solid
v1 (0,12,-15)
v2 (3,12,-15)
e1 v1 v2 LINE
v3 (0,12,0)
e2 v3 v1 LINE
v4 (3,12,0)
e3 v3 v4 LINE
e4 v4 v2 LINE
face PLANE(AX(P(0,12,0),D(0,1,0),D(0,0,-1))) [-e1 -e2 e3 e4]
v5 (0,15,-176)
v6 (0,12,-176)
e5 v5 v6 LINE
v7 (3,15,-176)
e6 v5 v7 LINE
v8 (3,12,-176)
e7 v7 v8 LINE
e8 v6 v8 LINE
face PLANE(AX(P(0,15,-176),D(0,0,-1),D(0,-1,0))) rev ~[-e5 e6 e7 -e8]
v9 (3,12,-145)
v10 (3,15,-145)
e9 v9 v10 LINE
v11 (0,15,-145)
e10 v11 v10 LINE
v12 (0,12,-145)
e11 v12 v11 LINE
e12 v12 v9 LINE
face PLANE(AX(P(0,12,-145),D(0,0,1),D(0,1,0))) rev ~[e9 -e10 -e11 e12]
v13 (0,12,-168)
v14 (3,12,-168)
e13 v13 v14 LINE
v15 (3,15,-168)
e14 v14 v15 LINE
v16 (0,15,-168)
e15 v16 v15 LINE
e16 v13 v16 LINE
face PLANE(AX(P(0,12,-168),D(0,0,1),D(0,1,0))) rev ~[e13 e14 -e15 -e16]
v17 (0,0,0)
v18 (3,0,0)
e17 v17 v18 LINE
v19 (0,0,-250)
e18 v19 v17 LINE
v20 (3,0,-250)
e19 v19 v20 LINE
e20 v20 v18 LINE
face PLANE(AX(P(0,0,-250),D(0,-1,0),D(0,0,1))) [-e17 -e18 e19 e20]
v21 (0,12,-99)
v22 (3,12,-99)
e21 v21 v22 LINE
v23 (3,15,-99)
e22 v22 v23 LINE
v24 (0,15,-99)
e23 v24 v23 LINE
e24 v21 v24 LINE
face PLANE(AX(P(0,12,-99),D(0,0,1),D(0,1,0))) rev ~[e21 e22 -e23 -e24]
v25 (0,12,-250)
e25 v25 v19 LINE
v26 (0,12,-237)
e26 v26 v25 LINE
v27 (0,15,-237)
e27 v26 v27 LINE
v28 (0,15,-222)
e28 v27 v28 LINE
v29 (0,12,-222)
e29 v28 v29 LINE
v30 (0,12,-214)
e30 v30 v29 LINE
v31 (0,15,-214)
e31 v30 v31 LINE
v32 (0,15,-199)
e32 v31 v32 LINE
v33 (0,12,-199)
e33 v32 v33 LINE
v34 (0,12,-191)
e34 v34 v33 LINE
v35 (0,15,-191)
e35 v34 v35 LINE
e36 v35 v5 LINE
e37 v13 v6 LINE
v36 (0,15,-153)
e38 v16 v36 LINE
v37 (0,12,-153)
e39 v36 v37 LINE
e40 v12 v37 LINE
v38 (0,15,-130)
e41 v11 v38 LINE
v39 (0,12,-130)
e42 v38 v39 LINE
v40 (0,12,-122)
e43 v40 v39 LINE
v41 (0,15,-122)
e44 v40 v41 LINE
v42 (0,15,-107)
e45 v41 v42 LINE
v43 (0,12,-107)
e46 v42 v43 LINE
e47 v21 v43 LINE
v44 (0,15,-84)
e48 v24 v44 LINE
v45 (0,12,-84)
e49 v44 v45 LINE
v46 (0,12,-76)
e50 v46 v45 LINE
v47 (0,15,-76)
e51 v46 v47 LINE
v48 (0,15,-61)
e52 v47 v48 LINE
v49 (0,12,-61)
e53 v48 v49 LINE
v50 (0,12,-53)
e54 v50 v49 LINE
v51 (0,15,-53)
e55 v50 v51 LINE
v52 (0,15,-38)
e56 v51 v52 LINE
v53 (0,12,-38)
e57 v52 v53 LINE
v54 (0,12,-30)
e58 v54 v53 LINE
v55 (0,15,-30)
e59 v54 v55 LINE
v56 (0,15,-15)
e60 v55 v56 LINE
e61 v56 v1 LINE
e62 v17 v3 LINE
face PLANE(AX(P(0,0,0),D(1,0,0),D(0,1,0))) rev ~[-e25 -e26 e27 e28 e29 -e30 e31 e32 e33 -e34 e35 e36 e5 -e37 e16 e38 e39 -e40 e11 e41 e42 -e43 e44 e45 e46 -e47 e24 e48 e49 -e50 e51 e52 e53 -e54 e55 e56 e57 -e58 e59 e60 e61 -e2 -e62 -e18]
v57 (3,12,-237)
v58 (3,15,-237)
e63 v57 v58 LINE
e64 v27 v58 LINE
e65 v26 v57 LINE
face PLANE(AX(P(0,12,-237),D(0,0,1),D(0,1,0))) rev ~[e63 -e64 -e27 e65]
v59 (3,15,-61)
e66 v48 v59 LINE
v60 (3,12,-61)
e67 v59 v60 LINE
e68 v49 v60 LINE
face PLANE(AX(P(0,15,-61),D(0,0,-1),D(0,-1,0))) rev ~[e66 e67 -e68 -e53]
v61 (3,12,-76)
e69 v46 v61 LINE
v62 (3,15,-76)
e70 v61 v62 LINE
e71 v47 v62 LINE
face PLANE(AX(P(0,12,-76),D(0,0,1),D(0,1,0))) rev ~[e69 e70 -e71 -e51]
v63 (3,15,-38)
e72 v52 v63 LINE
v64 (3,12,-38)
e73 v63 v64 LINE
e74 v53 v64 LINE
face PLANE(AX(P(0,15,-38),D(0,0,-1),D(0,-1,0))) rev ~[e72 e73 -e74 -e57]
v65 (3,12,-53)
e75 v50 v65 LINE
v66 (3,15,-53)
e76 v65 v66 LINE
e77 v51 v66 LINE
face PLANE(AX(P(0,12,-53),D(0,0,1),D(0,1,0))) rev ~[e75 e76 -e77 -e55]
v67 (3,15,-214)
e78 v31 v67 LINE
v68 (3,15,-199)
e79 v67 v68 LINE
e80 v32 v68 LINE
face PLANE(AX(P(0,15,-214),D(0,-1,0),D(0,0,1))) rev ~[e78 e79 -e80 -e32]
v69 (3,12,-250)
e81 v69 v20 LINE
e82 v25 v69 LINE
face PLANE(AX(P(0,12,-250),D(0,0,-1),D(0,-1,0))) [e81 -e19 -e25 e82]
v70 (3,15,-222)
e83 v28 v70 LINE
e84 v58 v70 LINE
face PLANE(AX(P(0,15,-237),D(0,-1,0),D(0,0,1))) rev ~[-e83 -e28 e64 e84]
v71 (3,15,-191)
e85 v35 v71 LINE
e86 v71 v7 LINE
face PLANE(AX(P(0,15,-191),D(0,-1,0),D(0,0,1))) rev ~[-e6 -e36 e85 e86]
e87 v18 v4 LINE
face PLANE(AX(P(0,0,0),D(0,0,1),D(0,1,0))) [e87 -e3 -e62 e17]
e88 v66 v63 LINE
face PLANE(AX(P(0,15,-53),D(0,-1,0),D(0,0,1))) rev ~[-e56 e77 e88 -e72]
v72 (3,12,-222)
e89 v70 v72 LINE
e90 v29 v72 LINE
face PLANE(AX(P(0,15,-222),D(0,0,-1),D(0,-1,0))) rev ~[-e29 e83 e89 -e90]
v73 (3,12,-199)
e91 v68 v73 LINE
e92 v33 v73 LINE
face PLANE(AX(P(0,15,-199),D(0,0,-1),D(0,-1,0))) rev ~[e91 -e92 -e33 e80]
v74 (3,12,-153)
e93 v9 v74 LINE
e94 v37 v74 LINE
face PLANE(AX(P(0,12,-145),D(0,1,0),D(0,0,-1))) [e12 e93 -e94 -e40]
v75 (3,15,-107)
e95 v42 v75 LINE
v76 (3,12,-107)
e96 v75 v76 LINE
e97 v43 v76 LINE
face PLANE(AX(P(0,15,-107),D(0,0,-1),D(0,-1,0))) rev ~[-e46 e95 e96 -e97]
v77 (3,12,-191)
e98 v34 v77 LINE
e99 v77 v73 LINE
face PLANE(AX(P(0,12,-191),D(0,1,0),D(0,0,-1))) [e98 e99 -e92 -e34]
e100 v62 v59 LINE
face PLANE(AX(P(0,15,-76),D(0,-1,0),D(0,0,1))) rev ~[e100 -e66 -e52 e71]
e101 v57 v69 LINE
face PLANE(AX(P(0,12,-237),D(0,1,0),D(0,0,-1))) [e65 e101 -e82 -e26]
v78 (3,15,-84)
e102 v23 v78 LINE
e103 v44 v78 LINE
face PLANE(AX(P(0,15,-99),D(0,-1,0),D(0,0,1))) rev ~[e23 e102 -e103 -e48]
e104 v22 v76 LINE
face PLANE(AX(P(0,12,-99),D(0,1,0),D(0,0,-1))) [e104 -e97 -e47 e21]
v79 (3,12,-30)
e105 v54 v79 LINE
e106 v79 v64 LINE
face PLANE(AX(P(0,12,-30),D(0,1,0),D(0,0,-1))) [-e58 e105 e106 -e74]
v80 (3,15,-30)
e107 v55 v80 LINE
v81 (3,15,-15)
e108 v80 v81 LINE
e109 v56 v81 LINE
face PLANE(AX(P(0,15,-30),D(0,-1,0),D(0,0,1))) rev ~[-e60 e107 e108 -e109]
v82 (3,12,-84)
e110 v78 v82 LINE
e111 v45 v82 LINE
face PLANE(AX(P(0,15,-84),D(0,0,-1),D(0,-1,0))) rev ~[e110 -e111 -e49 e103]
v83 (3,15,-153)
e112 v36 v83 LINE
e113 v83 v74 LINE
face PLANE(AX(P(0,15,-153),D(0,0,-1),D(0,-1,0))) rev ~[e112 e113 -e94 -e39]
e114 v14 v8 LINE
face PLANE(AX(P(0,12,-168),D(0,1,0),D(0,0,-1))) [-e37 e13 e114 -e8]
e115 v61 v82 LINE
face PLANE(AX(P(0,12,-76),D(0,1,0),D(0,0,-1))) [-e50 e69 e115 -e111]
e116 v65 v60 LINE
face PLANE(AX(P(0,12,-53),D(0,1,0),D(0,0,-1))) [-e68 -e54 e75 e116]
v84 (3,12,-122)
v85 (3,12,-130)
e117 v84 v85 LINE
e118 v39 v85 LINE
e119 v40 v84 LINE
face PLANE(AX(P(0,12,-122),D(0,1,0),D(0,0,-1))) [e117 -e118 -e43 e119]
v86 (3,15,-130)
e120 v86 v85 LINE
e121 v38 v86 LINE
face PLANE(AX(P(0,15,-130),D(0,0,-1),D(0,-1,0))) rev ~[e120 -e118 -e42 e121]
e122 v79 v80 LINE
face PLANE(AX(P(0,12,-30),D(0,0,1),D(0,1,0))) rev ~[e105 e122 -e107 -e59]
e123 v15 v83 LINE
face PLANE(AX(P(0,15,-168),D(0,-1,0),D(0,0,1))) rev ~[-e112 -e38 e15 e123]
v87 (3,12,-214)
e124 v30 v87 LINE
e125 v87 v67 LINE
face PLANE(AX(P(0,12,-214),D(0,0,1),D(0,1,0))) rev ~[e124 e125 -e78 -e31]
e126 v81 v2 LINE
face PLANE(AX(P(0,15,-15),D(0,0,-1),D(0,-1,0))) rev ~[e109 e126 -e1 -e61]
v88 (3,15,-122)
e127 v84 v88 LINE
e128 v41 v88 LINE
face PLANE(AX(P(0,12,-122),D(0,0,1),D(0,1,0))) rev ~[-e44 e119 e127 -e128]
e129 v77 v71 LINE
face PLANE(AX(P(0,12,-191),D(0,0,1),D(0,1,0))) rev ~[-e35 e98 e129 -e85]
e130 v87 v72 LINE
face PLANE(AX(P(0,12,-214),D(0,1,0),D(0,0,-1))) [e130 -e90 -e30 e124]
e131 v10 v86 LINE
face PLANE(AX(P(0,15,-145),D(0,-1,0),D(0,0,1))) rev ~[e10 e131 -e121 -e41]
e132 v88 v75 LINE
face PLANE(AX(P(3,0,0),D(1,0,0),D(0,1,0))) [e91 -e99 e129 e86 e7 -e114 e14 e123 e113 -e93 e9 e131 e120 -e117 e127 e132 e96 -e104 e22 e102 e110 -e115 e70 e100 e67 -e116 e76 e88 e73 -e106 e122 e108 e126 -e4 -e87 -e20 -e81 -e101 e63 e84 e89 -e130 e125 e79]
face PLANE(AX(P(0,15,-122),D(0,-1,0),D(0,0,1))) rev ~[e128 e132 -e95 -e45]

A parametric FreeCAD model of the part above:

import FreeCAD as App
import Part
import Sketcher
Q = App.Units.Quantity

doc = App.newDocument("Part")
params = doc.addObject("Spreadsheet::Sheet", "Params")
for row, (alias, value) in enumerate([
    ("sketch1_width", "12 mm"),
    ("sketch1_width2", "3 mm"),
    ("sketch1_height", "250 mm"),
    ("sketch1_height2", "15 mm"),
    ("pad1_length", "3 mm"),
], start=1):
    params.set(f"A{row}", alias)
    params.set(f"B{row}", "=" + value)
    params.setAlias(f"B{row}", alias)

body = doc.addObject("PartDesign::Body", "Body")

sketch1 = doc.addObject("Sketcher::SketchObject", "Sketch")
body.addObject(sketch1)
sketch1.AttachmentSupport = (doc.YZ_Plane, [""])
sketch1.MapMode = "FlatFace"
sketch1.addGeometry(Part.LineSegment(App.Vector(12, 0, 0), App.Vector(0, 0, 0)), False)
sketch1.addGeometry(Part.LineSegment(App.Vector(0, 0, 0), App.Vector(0, -250, 0)), False)
sketch1.addGeometry(Part.LineSegment(App.Vector(0, -250, 0), App.Vector(12, -250, 0)), False)
sketch1.addGeometry(Part.LineSegment(App.Vector(12, -250, 0), App.Vector(12, -237, 0)), False)
sketch1.addGeometry(Part.LineSegment(App.Vector(12, -237, 0), App.Vector(15, -237, 0)), False)
sketch1.addGeometry(Part.LineSegment(App.Vector(15, -237, 0), App.Vector(15, -222, 0)), False)
sketch1.addGeometry(Part.LineSegment(App.Vector(15, -222, 0), App.Vector(12, -222, 0)), False)
sketch1.addGeometry(Part.LineSegment(App.Vector(12, -222, 0), App.Vector(12, -214, 0)), False)
sketch1.addGeometry(Part.LineSegment(App.Vector(12, -214, 0), App.Vector(15, -214, 0)), False)
sketch1.addGeometry(Part.LineSegment(App.Vector(15, -214, 0), App.Vector(15, -199, 0)), False)
sketch1.addGeometry(Part.LineSegment(App.Vector(15, -199, 0), App.Vector(12, -199, 0)), False)
sketch1.addGeometry(Part.LineSegment(App.Vector(12, -199, 0), App.Vector(12, -191, 0)), False)
sketch1.addGeometry(Part.LineSegment(App.Vector(12, -191, 0), App.Vector(15, -191, 0)), False)
sketch1.addGeometry(Part.LineSegment(App.Vector(15, -191, 0), App.Vector(15, -176, 0)), False)
sketch1.addGeometry(Part.LineSegment(App.Vector(15, -176, 0), App.Vector(12, -176, 0)), False)
sketch1.addGeometry(Part.LineSegment(App.Vector(12, -176, 0), App.Vector(12, -168, 0)), False)
sketch1.addGeometry(Part.LineSegment(App.Vector(12, -168, 0), App.Vector(15, -168, 0)), False)
sketch1.addGeometry(Part.LineSegment(App.Vector(15, -168, 0), App.Vector(15, -153, 0)), False)
sketch1.addGeometry(Part.LineSegment(App.Vector(15, -153, 0), App.Vector(12, -153, 0)), False)
sketch1.addGeometry(Part.LineSegment(App.Vector(12, -153, 0), App.Vector(12, -145, 0)), False)
sketch1.addGeometry(Part.LineSegment(App.Vector(12, -145, 0), App.Vector(15, -145, 0)), False)
sketch1.addGeometry(Part.LineSegment(App.Vector(15, -145, 0), App.Vector(15, -130, 0)), False)
sketch1.addGeometry(Part.LineSegment(App.Vector(15, -130, 0), App.Vector(12, -130, 0)), False)
sketch1.addGeometry(Part.LineSegment(App.Vector(12, -130, 0), App.Vector(12, -122, 0)), False)
sketch1.addGeometry(Part.LineSegment(App.Vector(12, -122, 0), App.Vector(15, -122, 0)), False)
sketch1.addGeometry(Part.LineSegment(App.Vector(15, -122, 0), App.Vector(15, -107, 0)), False)
sketch1.addGeometry(Part.LineSegment(App.Vector(15, -107, 0), App.Vector(12, -107, 0)), False)
sketch1.addGeometry(Part.LineSegment(App.Vector(12, -107, 0), App.Vector(12, -99, 0)), False)
sketch1.addGeometry(Part.LineSegment(App.Vector(12, -99, 0), App.Vector(15, -99, 0)), False)
sketch1.addGeometry(Part.LineSegment(App.Vector(15, -99, 0), App.Vector(15, -84, 0)), False)
sketch1.addGeometry(Part.LineSegment(App.Vector(15, -84, 0), App.Vector(12, -84, 0)), False)
sketch1.addGeometry(Part.LineSegment(App.Vector(12, -84, 0), App.Vector(12, -76, 0)), False)
sketch1.addGeometry(Part.LineSegment(App.Vector(12, -76, 0), App.Vector(15, -76, 0)), False)
sketch1.addGeometry(Part.LineSegment(App.Vector(15, -76, 0), App.Vector(15, -61, 0)), False)
sketch1.addGeometry(Part.LineSegment(App.Vector(15, -61, 0), App.Vector(12, -61, 0)), False)
sketch1.addGeometry(Part.LineSegment(App.Vector(12, -61, 0), App.Vector(12, -53, 0)), False)
sketch1.addGeometry(Part.LineSegment(App.Vector(12, -53, 0), App.Vector(15, -53, 0)), False)
sketch1.addGeometry(Part.LineSegment(App.Vector(15, -53, 0), App.Vector(15, -38, 0)), False)
sketch1.addGeometry(Part.LineSegment(App.Vector(15, -38, 0), App.Vector(12, -38, 0)), False)
sketch1.addGeometry(Part.LineSegment(App.Vector(12, -38, 0), App.Vector(12, -30, 0)), False)
sketch1.addGeometry(Part.LineSegment(App.Vector(12, -30, 0), App.Vector(15, -30, 0)), False)
sketch1.addGeometry(Part.LineSegment(App.Vector(15, -30, 0), App.Vector(15, -15, 0)), False)
sketch1.addGeometry(Part.LineSegment(App.Vector(15, -15, 0), App.Vector(12, -15, 0)), False)
sketch1.addGeometry(Part.LineSegment(App.Vector(12, -15, 0), App.Vector(12, 0, 0)), False)
sketch1.addConstraint(Sketcher.Constraint("Coincident", 0, 2, 1, 1))
sketch1.addConstraint(Sketcher.Constraint("Coincident", 1, 2, 2, 1))
sketch1.addConstraint(Sketcher.Constraint("Coincident", 2, 2, 3, 1))
sketch1.addConstraint(Sketcher.Constraint("Coincident", 3, 2, 4, 1))
sketch1.addConstraint(Sketcher.Constraint("Coincident", 4, 2, 5, 1))
sketch1.addConstraint(Sketcher.Constraint("Coincident", 5, 2, 6, 1))
sketch1.addConstraint(Sketcher.Constraint("Coincident", 6, 2, 7, 1))
sketch1.addConstraint(Sketcher.Constraint("Coincident", 7, 2, 8, 1))
sketch1.addConstraint(Sketcher.Constraint("Coincident", 8, 2, 9, 1))
sketch1.addConstraint(Sketcher.Constraint("Coincident", 9, 2, 10, 1))
sketch1.addConstraint(Sketcher.Constraint("Coincident", 10, 2, 11, 1))
sketch1.addConstraint(Sketcher.Constraint("Coincident", 11, 2, 12, 1))
sketch1.addConstraint(Sketcher.Constraint("Coincident", 12, 2, 13, 1))
sketch1.addConstraint(Sketcher.Constraint("Coincident", 13, 2, 14, 1))
sketch1.addConstraint(Sketcher.Constraint("Coincident", 14, 2, 15, 1))
sketch1.addConstraint(Sketcher.Constraint("Coincident", 15, 2, 16, 1))
sketch1.addConstraint(Sketcher.Constraint("Coincident", 16, 2, 17, 1))
sketch1.addConstraint(Sketcher.Constraint("Coincident", 17, 2, 18, 1))
sketch1.addConstraint(Sketcher.Constraint("Coincident", 18, 2, 19, 1))
sketch1.addConstraint(Sketcher.Constraint("Coincident", 19, 2, 20, 1))
sketch1.addConstraint(Sketcher.Constraint("Coincident", 20, 2, 21, 1))
sketch1.addConstraint(Sketcher.Constraint("Coincident", 21, 2, 22, 1))
sketch1.addConstraint(Sketcher.Constraint("Coincident", 22, 2, 23, 1))
sketch1.addConstraint(Sketcher.Constraint("Coincident", 23, 2, 24, 1))
sketch1.addConstraint(Sketcher.Constraint("Coincident", 24, 2, 25, 1))
sketch1.addConstraint(Sketcher.Constraint("Coincident", 25, 2, 26, 1))
sketch1.addConstraint(Sketcher.Constraint("Coincident", 26, 2, 27, 1))
sketch1.addConstraint(Sketcher.Constraint("Coincident", 27, 2, 28, 1))
sketch1.addConstraint(Sketcher.Constraint("Coincident", 28, 2, 29, 1))
sketch1.addConstraint(Sketcher.Constraint("Coincident", 29, 2, 30, 1))
sketch1.addConstraint(Sketcher.Constraint("Coincident", 30, 2, 31, 1))
sketch1.addConstraint(Sketcher.Constraint("Coincident", 31, 2, 32, 1))
sketch1.addConstraint(Sketcher.Constraint("Coincident", 32, 2, 33, 1))
sketch1.addConstraint(Sketcher.Constraint("Coincident", 33, 2, 34, 1))
sketch1.addConstraint(Sketcher.Constraint("Coincident", 34, 2, 35, 1))
sketch1.addConstraint(Sketcher.Constraint("Coincident", 35, 2, 36, 1))
sketch1.addConstraint(Sketcher.Constraint("Coincident", 36, 2, 37, 1))
sketch1.addConstraint(Sketcher.Constraint("Coincident", 37, 2, 38, 1))
sketch1.addConstraint(Sketcher.Constraint("Coincident", 38, 2, 39, 1))
sketch1.addConstraint(Sketcher.Constraint("Coincident", 39, 2, 40, 1))
sketch1.addConstraint(Sketcher.Constraint("Coincident", 40, 2, 41, 1))
sketch1.addConstraint(Sketcher.Constraint("Coincident", 41, 2, 42, 1))
sketch1.addConstraint(Sketcher.Constraint("Coincident", 42, 2, 43, 1))
sketch1.addConstraint(Sketcher.Constraint("Coincident", 43, 2, 0, 1))
sketch1.addConstraint(Sketcher.Constraint("Horizontal", 0))
sketch1.addConstraint(Sketcher.Constraint("Vertical", 1))
sketch1.addConstraint(Sketcher.Constraint("Horizontal", 2))
sketch1.addConstraint(Sketcher.Constraint("Vertical", 3))
sketch1.addConstraint(Sketcher.Constraint("Horizontal", 4))
sketch1.addConstraint(Sketcher.Constraint("Vertical", 5))
sketch1.addConstraint(Sketcher.Constraint("Horizontal", 6))
sketch1.addConstraint(Sketcher.Constraint("Vertical", 7))
sketch1.addConstraint(Sketcher.Constraint("Horizontal", 8))
sketch1.addConstraint(Sketcher.Constraint("Vertical", 9))
sketch1.addConstraint(Sketcher.Constraint("Horizontal", 10))
sketch1.addConstraint(Sketcher.Constraint("Vertical", 11))
sketch1.addConstraint(Sketcher.Constraint("Horizontal", 12))
sketch1.addConstraint(Sketcher.Constraint("Vertical", 13))
sketch1.addConstraint(Sketcher.Constraint("Horizontal", 14))
sketch1.addConstraint(Sketcher.Constraint("Vertical", 15))
sketch1.addConstraint(Sketcher.Constraint("Horizontal", 16))
sketch1.addConstraint(Sketcher.Constraint("Vertical", 17))
sketch1.addConstraint(Sketcher.Constraint("Horizontal", 18))
sketch1.addConstraint(Sketcher.Constraint("Vertical", 19))
sketch1.addConstraint(Sketcher.Constraint("Horizontal", 20))
sketch1.addConstraint(Sketcher.Constraint("Vertical", 21))
sketch1.addConstraint(Sketcher.Constraint("Horizontal", 22))
sketch1.addConstraint(Sketcher.Constraint("Vertical", 23))
sketch1.addConstraint(Sketcher.Constraint("Horizontal", 24))
sketch1.addConstraint(Sketcher.Constraint("Vertical", 25))
sketch1.addConstraint(Sketcher.Constraint("Horizontal", 26))
sketch1.addConstraint(Sketcher.Constraint("Vertical", 27))
sketch1.addConstraint(Sketcher.Constraint("Horizontal", 28))
sketch1.addConstraint(Sketcher.Constraint("Vertical", 29))
sketch1.addConstraint(Sketcher.Constraint("Horizontal", 30))
sketch1.addConstraint(Sketcher.Constraint("Vertical", 31))
sketch1.addConstraint(Sketcher.Constraint("Horizontal", 32))
sketch1.addConstraint(Sketcher.Constraint("Vertical", 33))
sketch1.addConstraint(Sketcher.Constraint("Horizontal", 34))
sketch1.addConstraint(Sketcher.Constraint("Vertical", 35))
sketch1.addConstraint(Sketcher.Constraint("Horizontal", 36))
sketch1.addConstraint(Sketcher.Constraint("Vertical", 37))
sketch1.addConstraint(Sketcher.Constraint("Horizontal", 38))
sketch1.addConstraint(Sketcher.Constraint("Vertical", 39))
sketch1.addConstraint(Sketcher.Constraint("Horizontal", 40))
sketch1.addConstraint(Sketcher.Constraint("Vertical", 41))
sketch1.addConstraint(Sketcher.Constraint("Horizontal", 42))
sketch1.addConstraint(Sketcher.Constraint("Vertical", 43))
sketch1.addConstraint(Sketcher.Constraint("Coincident", 0, 2, -1, 1))
sketch1.addConstraint(Sketcher.Constraint("Vertical", 3, 2, 6, 2))
sketch1.addConstraint(Sketcher.Constraint("Vertical", 5, 2, 8, 2))
sketch1.addConstraint(Sketcher.Constraint("Vertical", 7, 2, 10, 2))
sketch1.addConstraint(Sketcher.Constraint("Vertical", 9, 2, 12, 2))
sketch1.addConstraint(Sketcher.Constraint("Vertical", 11, 2, 14, 2))
sketch1.addConstraint(Sketcher.Constraint("Vertical", 13, 2, 16, 2))
sketch1.addConstraint(Sketcher.Constraint("Vertical", 15, 2, 18, 2))
sketch1.addConstraint(Sketcher.Constraint("Vertical", 17, 2, 20, 2))
sketch1.addConstraint(Sketcher.Constraint("Vertical", 19, 2, 22, 2))
sketch1.addConstraint(Sketcher.Constraint("Vertical", 21, 2, 24, 2))
sketch1.addConstraint(Sketcher.Constraint("Vertical", 23, 2, 26, 2))
sketch1.addConstraint(Sketcher.Constraint("Vertical", 25, 2, 28, 2))
sketch1.addConstraint(Sketcher.Constraint("Vertical", 27, 2, 30, 2))
sketch1.addConstraint(Sketcher.Constraint("Vertical", 29, 2, 32, 2))
sketch1.addConstraint(Sketcher.Constraint("Vertical", 31, 2, 34, 2))
sketch1.addConstraint(Sketcher.Constraint("Vertical", 33, 2, 36, 2))
sketch1.addConstraint(Sketcher.Constraint("Vertical", 35, 2, 38, 2))
sketch1.addConstraint(Sketcher.Constraint("Vertical", 37, 2, 40, 2))
sketch1.addConstraint(Sketcher.Constraint("Vertical", 39, 2, 42, 2))
sketch1.addConstraint(Sketcher.Constraint("Equal", 5, 9))
sketch1.addConstraint(Sketcher.Constraint("Equal", 7, 11))
sketch1.addConstraint(Sketcher.Constraint("Equal", 9, 13))
sketch1.addConstraint(Sketcher.Constraint("Equal", 11, 15))
sketch1.addConstraint(Sketcher.Constraint("Equal", 13, 17))
sketch1.addConstraint(Sketcher.Constraint("Equal", 15, 19))
sketch1.addConstraint(Sketcher.Constraint("Equal", 17, 21))
sketch1.addConstraint(Sketcher.Constraint("Equal", 19, 23))
sketch1.addConstraint(Sketcher.Constraint("Equal", 21, 25))
sketch1.addConstraint(Sketcher.Constraint("Equal", 23, 27))
sketch1.addConstraint(Sketcher.Constraint("Equal", 25, 29))
sketch1.addConstraint(Sketcher.Constraint("Equal", 27, 31))
sketch1.addConstraint(Sketcher.Constraint("Equal", 29, 33))
sketch1.addConstraint(Sketcher.Constraint("Equal", 31, 35))
sketch1.addConstraint(Sketcher.Constraint("Equal", 33, 37))
sketch1.addConstraint(Sketcher.Constraint("Equal", 35, 39))
sketch1.addConstraint(Sketcher.Constraint("Equal", 37, 41))
sketch1.addConstraint(Sketcher.Constraint("Equal", 41, 43))
sketch1.addConstraint(Sketcher.Constraint("DistanceX", 0, 2, 0, 1, Q("12 mm")))
sketch1.addConstraint(Sketcher.Constraint("DistanceX", 4, 1, 4, 2, Q("3 mm")))
sketch1.addConstraint(Sketcher.Constraint("DistanceY", 1, 2, 1, 1, Q("250 mm")))
sketch1.addConstraint(Sketcher.Constraint("DistanceY", 5, 1, 5, 2, Q("15 mm")))
sketch1.addConstraint(Sketcher.Constraint("DistanceY", 3, 2, 7, 2, Q("23 mm")))
sketch1.setExpression("Constraints[126]", "Params.sketch1_width")
sketch1.setExpression("Constraints[127]", "Params.sketch1_width2")
sketch1.setExpression("Constraints[128]", "Params.sketch1_height")
sketch1.setExpression("Constraints[129]", "Params.sketch1_height2")
pad1 = doc.addObject("PartDesign::Pad", "Pad")
body.addObject(pad1)
pad1.Profile = sketch1
pad1.setExpression("Length", "Params.pad1_length")

doc.recompute()
